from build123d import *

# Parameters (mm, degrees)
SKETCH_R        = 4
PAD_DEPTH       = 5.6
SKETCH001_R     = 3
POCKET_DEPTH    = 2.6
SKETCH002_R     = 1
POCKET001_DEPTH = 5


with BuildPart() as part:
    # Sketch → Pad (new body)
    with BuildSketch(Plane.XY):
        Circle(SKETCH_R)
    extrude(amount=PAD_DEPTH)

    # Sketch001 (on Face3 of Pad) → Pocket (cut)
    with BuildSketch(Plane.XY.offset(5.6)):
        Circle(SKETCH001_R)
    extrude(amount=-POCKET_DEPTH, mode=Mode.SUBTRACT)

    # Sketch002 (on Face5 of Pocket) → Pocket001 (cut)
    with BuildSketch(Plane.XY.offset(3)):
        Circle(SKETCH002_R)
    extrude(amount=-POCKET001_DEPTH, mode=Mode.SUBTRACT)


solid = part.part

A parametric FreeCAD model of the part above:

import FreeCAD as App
import Part
import Sketcher
Q = App.Units.Quantity

doc = App.newDocument("Part")
body = doc.addObject("PartDesign::Body", "Body")

sketch1 = body.newObject("Sketcher::SketchObject", "Sketch")
sketch1.AttachmentSupport = (doc.getObject("XY_Plane"), [""])
sketch1.MapMode = "FlatFace"
sketch1.addGeometry(Part.Circle(App.Vector(0, 0, 0), App.Vector(0, 0, 1), 4), False)
sketch1.addConstraint([
    Sketcher.Constraint("Coincident", 0, 3, -1, 1),
    Sketcher.Constraint("Diameter", 0, Q("8 mm")),
])
pad1 = body.newObject("PartDesign::Pad", "Pad")
pad1.Profile = sketch1
pad1.Length = 5.6

sketch2 = body.newObject("Sketcher::SketchObject", "Sketch001")
sketch2.AttachmentSupport = (doc.getObject("XY_Plane"), [""])
sketch2.MapMode = "FlatFace"
sketch2.AttachmentOffset = App.Placement(App.Vector(0, 0, 5.6), App.Rotation())
sketch2.addGeometry(Part.Circle(App.Vector(0, 0, 0), App.Vector(0, 0, 1), 3), False)
sketch2.addConstraint([
    Sketcher.Constraint("Coincident", 0, 3, -1, 1),
    Sketcher.Constraint("Diameter", 0, Q("6 mm")),
])
pocket1 = body.newObject("PartDesign::Pocket", "Pocket")
pocket1.Profile = sketch2
pocket1.Length = 2.6

sketch3 = body.newObject("Sketcher::SketchObject", "Sketch002")
sketch3.AttachmentSupport = (doc.getObject("XY_Plane"), [""])
sketch3.MapMode = "FlatFace"
sketch3.AttachmentOffset = App.Placement(App.Vector(0, 0, 3), App.Rotation())
sketch3.addGeometry(Part.Circle(App.Vector(0, 0, 0), App.Vector(0, 0, 1), 1), False)
sketch3.addConstraint([
    Sketcher.Constraint("Coincident", 0, 3, -1, 1),
    Sketcher.Constraint("Diameter", 0, Q("2 mm")),
])
pocket2 = body.newObject("PartDesign::Pocket", "Pocket001")
pocket2.Profile = sketch3
pocket2.Length = 5

doc.recompute()
